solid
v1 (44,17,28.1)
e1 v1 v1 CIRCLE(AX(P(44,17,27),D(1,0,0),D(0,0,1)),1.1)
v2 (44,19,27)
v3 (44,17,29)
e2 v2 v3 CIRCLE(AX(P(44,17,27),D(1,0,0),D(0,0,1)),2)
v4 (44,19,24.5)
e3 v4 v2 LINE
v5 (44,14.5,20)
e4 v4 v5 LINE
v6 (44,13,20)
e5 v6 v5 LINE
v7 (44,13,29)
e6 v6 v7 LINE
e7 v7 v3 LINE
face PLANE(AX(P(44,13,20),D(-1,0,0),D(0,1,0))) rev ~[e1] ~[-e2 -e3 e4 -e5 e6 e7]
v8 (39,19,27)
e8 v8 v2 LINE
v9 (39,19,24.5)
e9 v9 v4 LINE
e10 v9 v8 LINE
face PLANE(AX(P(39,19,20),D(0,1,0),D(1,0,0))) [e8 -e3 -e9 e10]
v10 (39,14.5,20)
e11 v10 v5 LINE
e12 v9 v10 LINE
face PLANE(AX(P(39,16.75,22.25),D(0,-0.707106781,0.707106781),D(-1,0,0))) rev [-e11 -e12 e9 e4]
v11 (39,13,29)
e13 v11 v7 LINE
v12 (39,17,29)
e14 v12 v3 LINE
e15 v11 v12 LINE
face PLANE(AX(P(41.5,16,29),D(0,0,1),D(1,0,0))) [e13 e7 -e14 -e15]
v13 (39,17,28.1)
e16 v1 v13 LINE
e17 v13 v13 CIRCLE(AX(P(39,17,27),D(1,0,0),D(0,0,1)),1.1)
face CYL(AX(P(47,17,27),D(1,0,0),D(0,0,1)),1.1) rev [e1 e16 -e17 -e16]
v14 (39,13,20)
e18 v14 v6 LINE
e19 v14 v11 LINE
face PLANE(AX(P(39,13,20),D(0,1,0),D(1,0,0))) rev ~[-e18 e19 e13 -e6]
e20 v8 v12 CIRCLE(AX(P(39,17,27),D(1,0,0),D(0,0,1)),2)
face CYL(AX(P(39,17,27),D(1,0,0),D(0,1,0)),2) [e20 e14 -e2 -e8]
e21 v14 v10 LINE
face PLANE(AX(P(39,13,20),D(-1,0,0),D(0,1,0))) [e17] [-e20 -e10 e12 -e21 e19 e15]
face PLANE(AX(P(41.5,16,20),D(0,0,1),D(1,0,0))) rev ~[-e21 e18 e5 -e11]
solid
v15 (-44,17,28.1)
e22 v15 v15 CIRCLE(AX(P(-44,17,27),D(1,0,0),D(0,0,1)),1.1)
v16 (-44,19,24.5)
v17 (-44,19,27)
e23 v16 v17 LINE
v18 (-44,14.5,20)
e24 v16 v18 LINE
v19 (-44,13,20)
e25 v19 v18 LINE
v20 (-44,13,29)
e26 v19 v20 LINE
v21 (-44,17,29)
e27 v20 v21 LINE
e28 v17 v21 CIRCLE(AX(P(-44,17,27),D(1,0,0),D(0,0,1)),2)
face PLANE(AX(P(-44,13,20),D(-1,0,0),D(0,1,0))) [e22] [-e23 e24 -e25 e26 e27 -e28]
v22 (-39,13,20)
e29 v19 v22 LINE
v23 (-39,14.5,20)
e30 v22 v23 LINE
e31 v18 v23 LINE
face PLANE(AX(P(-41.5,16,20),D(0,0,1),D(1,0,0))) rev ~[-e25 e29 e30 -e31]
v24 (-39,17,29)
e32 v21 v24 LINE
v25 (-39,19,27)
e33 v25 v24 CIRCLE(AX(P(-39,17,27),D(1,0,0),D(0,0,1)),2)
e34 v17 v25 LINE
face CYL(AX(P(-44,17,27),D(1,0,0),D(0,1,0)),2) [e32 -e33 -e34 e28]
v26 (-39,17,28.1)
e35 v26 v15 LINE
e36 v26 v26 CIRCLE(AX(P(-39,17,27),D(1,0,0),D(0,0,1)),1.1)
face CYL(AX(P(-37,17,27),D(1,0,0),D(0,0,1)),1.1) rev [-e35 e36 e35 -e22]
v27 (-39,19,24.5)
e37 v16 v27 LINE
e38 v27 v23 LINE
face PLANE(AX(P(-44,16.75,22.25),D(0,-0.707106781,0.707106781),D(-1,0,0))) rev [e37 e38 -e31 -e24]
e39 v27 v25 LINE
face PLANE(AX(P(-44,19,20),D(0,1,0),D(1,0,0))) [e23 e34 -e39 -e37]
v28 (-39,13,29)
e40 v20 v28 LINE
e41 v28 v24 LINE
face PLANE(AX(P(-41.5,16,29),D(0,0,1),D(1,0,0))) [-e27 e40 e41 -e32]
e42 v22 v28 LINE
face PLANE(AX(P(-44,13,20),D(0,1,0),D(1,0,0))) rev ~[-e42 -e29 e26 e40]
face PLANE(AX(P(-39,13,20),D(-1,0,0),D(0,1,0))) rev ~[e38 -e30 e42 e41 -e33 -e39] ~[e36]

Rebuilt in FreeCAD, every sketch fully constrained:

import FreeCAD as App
import Part
import Sketcher


def edges_at(feature, points):
    """Names of the edges that pass closest to the given points."""
    edges = feature.Shape.Edges
    near = lambda p: min(range(len(edges)), key=lambda i: edges[i].distToShape(Part.Vertex(*p))[0])
    return sorted({f"Edge{near(p) + 1}" for p in points})


def add_polygon(sketch, points):
    """Adds a closed chain of lines whose ends are joined by coincident constraints."""
    first, n = sketch.GeometryCount, len(points)
    for a, b in zip(points, points[1:] + points[:1]):
        sketch.addGeometry(Part.LineSegment(App.Vector(*a, 0), App.Vector(*b, 0)), False)
    for i in range(n):
        sketch.addConstraint(Sketcher.Constraint("Coincident", first + i, 2, first + (i + 1) % n, 1))

doc = App.newDocument("Part")
body = doc.addObject("PartDesign::Body", "Body")

sketch1 = body.newObject("Sketcher::SketchObject", "Sketch")
sketch1.AttachmentSupport = (doc.getObject("YZ_Plane"), [""])
sketch1.MapMode = "FlatFace"
sketch1.AttachmentOffset = App.Placement(App.Vector(0, 0, 47), App.Rotation())
sketch1.addGeometry(Part.Circle(App.Vector(17, 27, 0), App.Vector(0, 0, 1), 1.1), False)
sketch1.addConstraint([
    Sketcher.Constraint("Diameter", 0, 2.2),
    Sketcher.Constraint("DistanceX", -1, 1, 0, 3, 17.0),
    Sketcher.Constraint("DistanceY", -1, 1, 0, 3, 27.0),
])
pad1 = body.newObject("PartDesign::Pad", "Pad")
pad1.Profile = sketch1
pad1.Length = 10
pad1.Reversed = True
body2 = doc.addObject("PartDesign::Body", "Body001")

sketch2 = body2.newObject("Sketcher::SketchObject", "Sketch001")
sketch2.AttachmentSupport = (doc.getObject("XY_Plane001"), [""])
sketch2.MapMode = "FlatFace"
sketch2.AttachmentOffset = App.Placement(App.Vector(0, 0, 20), App.Rotation())
add_polygon(sketch2, [(39, 19), (39, 13), (44, 13), (44, 19)])
sketch2.addConstraint([
    Sketcher.Constraint("Vertical", 0),
    Sketcher.Constraint("Horizontal", 1),
    Sketcher.Constraint("Vertical", 2),
    Sketcher.Constraint("Horizontal", 3),
    Sketcher.Constraint("DistanceX", 1, 1, 1, 2, 5.0),
    Sketcher.Constraint("DistanceY", 0, 2, 0, 1, 6.0),
    Sketcher.Constraint("DistanceX", -1, 1, 0, 2, 39.0),
    Sketcher.Constraint("DistanceY", -1, 1, 0, 2, 13.0),
])
pad2 = body2.newObject("PartDesign::Pad", "Pad001")
pad2.Profile = sketch2
pad2.Length = 9
doc.recompute()

fillet = body2.newObject("PartDesign::Fillet", "Fillet")
fillet.Base = (pad2, edges_at(pad2, [(41.5, 19, 29)]))
fillet.Radius = 2
doc.recompute()

chamfer = body2.newObject("PartDesign::Chamfer", "Chamfer")
chamfer.Base = (fillet, edges_at(fillet, [(41.5, 19, 20)]))
chamfer.Size = 4.5
doc.recompute()

boolean = body2.newObject("PartDesign::Boolean", "Boolean")
boolean.Type = "Cut"
boolean.addObjects([body])
body3 = doc.addObject("PartDesign::Body", "Body002")

sketch3 = body3.newObject("Sketcher::SketchObject", "Sketch002")
sketch3.AttachmentSupport = (doc.getObject("YZ_Plane002"), [""])
sketch3.MapMode = "FlatFace"
sketch3.AttachmentOffset = App.Placement(App.Vector(0, 0, -37), App.Rotation())
sketch3.addGeometry(Part.Circle(App.Vector(17, 27, 0), App.Vector(0, 0, 1), 1.1), False)
sketch3.addConstraint([
    Sketcher.Constraint("Diameter", 0, 2.2),
    Sketcher.Constraint("DistanceX", -1, 1, 0, 3, 17.0),
    Sketcher.Constraint("DistanceY", -1, 1, 0, 3, 27.0),
])
pad3 = body3.newObject("PartDesign::Pad", "Pad002")
pad3.Profile = sketch3
pad3.Length = 10
pad3.Reversed = True
body4 = doc.addObject("PartDesign::Body", "Body003")
body4.AllowCompound = True

sketch4 = body4.newObject("Sketcher::SketchObject", "Sketch003")
sketch4.AttachmentSupport = (doc.getObject("XY_Plane003"), [""])
sketch4.MapMode = "FlatFace"
sketch4.AttachmentOffset = App.Placement(App.Vector(0, 0, 20), App.Rotation())
add_polygon(sketch4, [(-44, 19), (-44, 13), (-39, 13), (-39, 19)])
sketch4.addConstraint([
    Sketcher.Constraint("Vertical", 0),
    Sketcher.Constraint("Horizontal", 1),
    Sketcher.Constraint("Vertical", 2),
    Sketcher.Constraint("Horizontal", 3),
    Sketcher.Constraint("DistanceX", 1, 1, 1, 2, 5.0),
    Sketcher.Constraint("DistanceY", 0, 2, 0, 1, 6.0),
    Sketcher.Constraint("DistanceX", 0, 2, -1, 1, 44.0),
    Sketcher.Constraint("DistanceY", -1, 1, 0, 2, 13.0),
])
pad4 = body4.newObject("PartDesign::Pad", "Pad003")
pad4.Profile = sketch4
pad4.Length = 9
doc.recompute()

fillet2 = body4.newObject("PartDesign::Fillet", "Fillet001")
fillet2.Base = (pad4, edges_at(pad4, [(-41.5, 19, 29)]))
fillet2.Radius = 2
doc.recompute()

chamfer2 = body4.newObject("PartDesign::Chamfer", "Chamfer001")
chamfer2.Base = (fillet2, edges_at(fillet2, [(-41.5, 19, 20)]))
chamfer2.Size = 4.5
doc.recompute()

boolean2 = body4.newObject("PartDesign::Boolean", "Boolean001")
boolean2.Type = "Cut"
boolean2.addObjects([body3])
doc.recompute()

boolean3 = body4.newObject("PartDesign::Boolean", "Boolean002")
boolean3.Type = "Fuse"
boolean3.addObjects([body2])

doc.recompute()
